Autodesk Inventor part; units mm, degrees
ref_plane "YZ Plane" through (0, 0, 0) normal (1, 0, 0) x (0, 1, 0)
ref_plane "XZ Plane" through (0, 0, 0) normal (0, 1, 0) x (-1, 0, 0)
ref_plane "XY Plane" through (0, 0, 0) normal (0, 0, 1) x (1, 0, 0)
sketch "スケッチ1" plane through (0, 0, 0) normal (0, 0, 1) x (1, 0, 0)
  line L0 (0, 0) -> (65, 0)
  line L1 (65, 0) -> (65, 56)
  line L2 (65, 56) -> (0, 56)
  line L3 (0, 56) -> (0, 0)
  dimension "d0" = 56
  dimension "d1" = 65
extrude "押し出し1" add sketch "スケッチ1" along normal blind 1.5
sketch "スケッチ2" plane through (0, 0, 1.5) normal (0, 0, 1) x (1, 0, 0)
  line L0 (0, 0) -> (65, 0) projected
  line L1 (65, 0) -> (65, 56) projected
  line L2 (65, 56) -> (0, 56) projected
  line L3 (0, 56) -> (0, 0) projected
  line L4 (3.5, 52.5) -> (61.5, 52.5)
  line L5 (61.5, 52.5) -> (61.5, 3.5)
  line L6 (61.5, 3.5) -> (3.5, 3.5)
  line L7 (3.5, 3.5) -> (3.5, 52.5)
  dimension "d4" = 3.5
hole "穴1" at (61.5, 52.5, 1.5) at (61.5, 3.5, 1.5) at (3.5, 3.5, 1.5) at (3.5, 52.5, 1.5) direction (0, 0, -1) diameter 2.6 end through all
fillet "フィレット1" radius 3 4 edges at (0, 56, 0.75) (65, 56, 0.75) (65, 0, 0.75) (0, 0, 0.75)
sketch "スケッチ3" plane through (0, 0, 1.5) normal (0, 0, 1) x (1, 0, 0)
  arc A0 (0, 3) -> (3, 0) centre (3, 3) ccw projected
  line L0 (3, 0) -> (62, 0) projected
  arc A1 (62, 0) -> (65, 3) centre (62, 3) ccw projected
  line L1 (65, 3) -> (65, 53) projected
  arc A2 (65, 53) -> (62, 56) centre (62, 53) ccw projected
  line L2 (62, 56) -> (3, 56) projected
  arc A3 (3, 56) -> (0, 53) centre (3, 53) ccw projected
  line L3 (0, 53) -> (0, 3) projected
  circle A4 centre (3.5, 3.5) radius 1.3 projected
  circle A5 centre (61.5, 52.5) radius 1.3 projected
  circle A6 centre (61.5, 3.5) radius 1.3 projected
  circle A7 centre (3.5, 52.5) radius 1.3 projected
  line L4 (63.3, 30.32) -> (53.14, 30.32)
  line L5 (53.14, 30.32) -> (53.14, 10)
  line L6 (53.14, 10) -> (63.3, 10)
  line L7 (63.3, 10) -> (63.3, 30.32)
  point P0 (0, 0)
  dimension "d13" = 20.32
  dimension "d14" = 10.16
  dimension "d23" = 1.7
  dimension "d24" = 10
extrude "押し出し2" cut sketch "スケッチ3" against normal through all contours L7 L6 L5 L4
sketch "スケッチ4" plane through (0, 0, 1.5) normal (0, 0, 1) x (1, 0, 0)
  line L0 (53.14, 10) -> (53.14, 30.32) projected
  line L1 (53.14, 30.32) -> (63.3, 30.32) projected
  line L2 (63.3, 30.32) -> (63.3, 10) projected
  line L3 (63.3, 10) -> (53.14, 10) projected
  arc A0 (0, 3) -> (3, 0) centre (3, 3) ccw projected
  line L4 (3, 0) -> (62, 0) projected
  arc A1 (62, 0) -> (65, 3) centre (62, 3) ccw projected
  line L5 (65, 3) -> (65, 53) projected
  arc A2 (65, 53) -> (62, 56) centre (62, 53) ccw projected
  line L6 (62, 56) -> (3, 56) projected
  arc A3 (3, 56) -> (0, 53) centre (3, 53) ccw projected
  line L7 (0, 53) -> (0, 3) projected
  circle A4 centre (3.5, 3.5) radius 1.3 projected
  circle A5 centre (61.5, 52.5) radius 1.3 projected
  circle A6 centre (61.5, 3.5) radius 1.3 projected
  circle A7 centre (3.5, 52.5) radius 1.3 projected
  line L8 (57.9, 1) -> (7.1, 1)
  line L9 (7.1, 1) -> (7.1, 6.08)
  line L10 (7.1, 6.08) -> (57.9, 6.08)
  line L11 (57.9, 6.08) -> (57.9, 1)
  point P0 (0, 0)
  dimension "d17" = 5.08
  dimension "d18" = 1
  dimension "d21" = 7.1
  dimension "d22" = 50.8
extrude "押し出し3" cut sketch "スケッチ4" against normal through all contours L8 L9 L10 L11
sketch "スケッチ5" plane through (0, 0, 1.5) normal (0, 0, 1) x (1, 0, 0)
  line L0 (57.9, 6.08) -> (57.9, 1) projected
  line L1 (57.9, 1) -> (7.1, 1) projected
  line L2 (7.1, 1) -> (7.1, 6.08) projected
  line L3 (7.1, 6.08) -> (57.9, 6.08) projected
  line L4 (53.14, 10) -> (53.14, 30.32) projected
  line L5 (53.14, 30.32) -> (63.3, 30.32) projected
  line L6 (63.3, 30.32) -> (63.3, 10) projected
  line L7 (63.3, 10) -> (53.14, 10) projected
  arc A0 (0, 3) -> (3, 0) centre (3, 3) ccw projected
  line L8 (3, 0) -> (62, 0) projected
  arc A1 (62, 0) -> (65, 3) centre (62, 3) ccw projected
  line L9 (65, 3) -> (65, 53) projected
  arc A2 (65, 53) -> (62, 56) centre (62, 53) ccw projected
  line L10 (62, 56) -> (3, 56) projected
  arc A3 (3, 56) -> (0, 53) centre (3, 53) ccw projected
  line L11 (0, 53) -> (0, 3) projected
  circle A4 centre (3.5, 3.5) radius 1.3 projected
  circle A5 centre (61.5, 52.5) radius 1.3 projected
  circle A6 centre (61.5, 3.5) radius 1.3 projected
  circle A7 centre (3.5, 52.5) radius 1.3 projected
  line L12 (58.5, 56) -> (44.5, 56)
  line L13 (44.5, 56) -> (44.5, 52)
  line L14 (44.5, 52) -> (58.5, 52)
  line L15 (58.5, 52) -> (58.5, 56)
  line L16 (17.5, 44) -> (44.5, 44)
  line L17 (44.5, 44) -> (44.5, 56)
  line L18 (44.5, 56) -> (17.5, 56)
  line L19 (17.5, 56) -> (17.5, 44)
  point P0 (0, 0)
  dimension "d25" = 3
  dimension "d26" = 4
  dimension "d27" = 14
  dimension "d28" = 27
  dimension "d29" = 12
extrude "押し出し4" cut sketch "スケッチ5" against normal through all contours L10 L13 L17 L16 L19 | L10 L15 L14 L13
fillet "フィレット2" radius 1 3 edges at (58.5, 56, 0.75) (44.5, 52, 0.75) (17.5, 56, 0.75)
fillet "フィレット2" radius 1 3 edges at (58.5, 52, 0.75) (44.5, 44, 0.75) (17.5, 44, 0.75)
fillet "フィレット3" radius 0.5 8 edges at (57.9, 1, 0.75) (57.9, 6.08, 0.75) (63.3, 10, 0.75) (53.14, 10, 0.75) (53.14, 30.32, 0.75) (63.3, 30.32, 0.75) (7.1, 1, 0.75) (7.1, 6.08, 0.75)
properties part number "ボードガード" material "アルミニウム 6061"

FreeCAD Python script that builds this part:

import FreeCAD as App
import Part
import Sketcher
from FreeCAD import Vector


def edges_at(feature, points):
    """Names of the edges that pass closest to the given points."""
    edges = feature.Shape.Edges
    near = lambda p: min(range(len(edges)), key=lambda i: edges[i].distToShape(Part.Vertex(*p))[0])
    return sorted({f"Edge{near(p) + 1}" for p in points})


def add_polygon(sketch, points):
    """Adds a closed chain of lines whose ends are joined by coincident constraints."""
    first, n = sketch.GeometryCount, len(points)
    for a, b in zip(points, points[1:] + points[:1]):
        sketch.addGeometry(Part.LineSegment(App.Vector(*a, 0), App.Vector(*b, 0)), False)
    for i in range(n):
        sketch.addConstraint(Sketcher.Constraint("Coincident", first + i, 2, first + (i + 1) % n, 1))

doc = App.newDocument("Part")
body = doc.addObject("PartDesign::Body", "Body")

# Sketch on XY plane
sketch1 = body.newObject("Sketcher::SketchObject", "Sketch")
sketch1.AttachmentSupport = (doc.getObject("XY_Plane"), [""])
sketch1.MapMode = "FlatFace"
add_polygon(sketch1, [(0, 56), (0, 0), (65, 0), (65, 56)])  # lines 0-3
sketch1.addConstraint(Sketcher.Constraint("Vertical", 0))
sketch1.addConstraint(Sketcher.Constraint("Horizontal", 1))
sketch1.addConstraint(Sketcher.Constraint("Vertical", 2))
sketch1.addConstraint(Sketcher.Constraint("Horizontal", 3))
sketch1.addConstraint(Sketcher.Constraint("Coincident", 0, 2, -1, 1))
sketch1.addConstraint(Sketcher.Constraint("DistanceX", 1, 1, 1, 2, 65.0))
sketch1.addConstraint(Sketcher.Constraint("DistanceY", 0, 2, 0, 1, 56.0))
pad1 = body.newObject("PartDesign::Pad", "Pad")
pad1.Profile = sketch1
pad1.Length = 1.5

# Sketch on XY plane
sketch2 = body.newObject("Sketcher::SketchObject", "Sketch001")
sketch2.AttachmentSupport = (doc.getObject("XY_Plane"), [""])
sketch2.MapMode = "FlatFace"
sketch2.AttachmentOffset = App.Placement(Vector(0, 0, 1.5), App.Rotation())
sketch2.addGeometry(Part.Circle(Vector(61.5, 52.5, 0), Vector(0, 0, 1), 1.3), False)
sketch2.addGeometry(Part.Circle(Vector(61.5, 3.5, 0), Vector(0, 0, 1), 1.3), False)
sketch2.addGeometry(Part.Circle(Vector(3.5, 3.5, 0), Vector(0, 0, 1), 1.3), False)
sketch2.addGeometry(Part.Circle(Vector(3.5, 52.5, 0), Vector(0, 0, 1), 1.3), False)
sketch2.addConstraint(Sketcher.Constraint("Equal", 0, 1))
sketch2.addConstraint(Sketcher.Constraint("Equal", 1, 2))
sketch2.addConstraint(Sketcher.Constraint("Equal", 2, 3))
sketch2.addConstraint(Sketcher.Constraint("Horizontal", 1, 3, 2, 3))
sketch2.addConstraint(Sketcher.Constraint("Horizontal", 0, 3, 3, 3))
sketch2.addConstraint(Sketcher.Constraint("Vertical", 0, 3, 1, 3))
sketch2.addConstraint(Sketcher.Constraint("Vertical", 2, 3, 3, 3))
sketch2.addConstraint(Sketcher.Constraint("Diameter", 0, 2.6))
sketch2.addConstraint(Sketcher.Constraint("DistanceY", 1, 3, 0, 3, 49.0))
sketch2.addConstraint(Sketcher.Constraint("DistanceX", 2, 3, 1, 3, 58.0))
sketch2.addConstraint(Sketcher.Constraint("DistanceX", -1, 1, 0, 3, 61.5))
sketch2.addConstraint(Sketcher.Constraint("DistanceY", -1, 1, 0, 3, 52.5))
doc.recompute()
hole = body.newObject("PartDesign::Hole", "Hole")
hole.Profile = sketch2
hole.ThreadType = "None"
hole.Diameter = 2.6
hole.DepthType = "ThroughAll"
doc.recompute()

fillet = body.newObject("PartDesign::Fillet", "Fillet")
fillet.Base = (hole, edges_at(hole, [
    (0, 56, 0.75),
    (65, 56, 0.75),
    (65, 0, 0.75),
    (0, 0, 0.75),
]))
fillet.Radius = 3

# Sketch on XY plane
sketch3 = body.newObject("Sketcher::SketchObject", "Sketch002")
sketch3.AttachmentSupport = (doc.getObject("XY_Plane"), [""])
sketch3.MapMode = "FlatFace"
sketch3.AttachmentOffset = App.Placement(Vector(0, 0, 1.5), App.Rotation())
add_polygon(sketch3, [(63, 10), (63, 30), (53, 30), (53, 10)])  # lines 0-3
sketch3.addConstraint(Sketcher.Constraint("Vertical", 0))
sketch3.addConstraint(Sketcher.Constraint("Horizontal", 1))
sketch3.addConstraint(Sketcher.Constraint("Vertical", 2))
sketch3.addConstraint(Sketcher.Constraint("Horizontal", 3))
sketch3.addConstraint(Sketcher.Constraint("DistanceY", -1, 1, 2, 2, 10.0))
sketch3.addConstraint(Sketcher.Constraint("DistanceX", 1, 2, 1, 1, 10.16))
sketch3.addConstraint(Sketcher.Constraint("DistanceY", 0, 1, 0, 2, 20.32))
sketch3.addConstraint(Sketcher.Constraint("DistanceX", -1, 1, 0, 2, 63.3))
pocket1 = body.newObject("PartDesign::Pocket", "Pocket")
pocket1.Profile = sketch3
pocket1.Type = "ThroughAll"

# Sketch on XY plane
sketch4 = body.newObject("Sketcher::SketchObject", "Sketch003")
sketch4.AttachmentSupport = (doc.getObject("XY_Plane"), [""])
sketch4.MapMode = "FlatFace"
sketch4.AttachmentOffset = App.Placement(Vector(0, 0, 1.5), App.Rotation())
add_polygon(sketch4, [(7, 1), (58, 1), (58, 6), (7, 6)])  # lines 0-3
sketch4.addConstraint(Sketcher.Constraint("Horizontal", 0))
sketch4.addConstraint(Sketcher.Constraint("Vertical", 1))
sketch4.addConstraint(Sketcher.Constraint("Horizontal", 2))
sketch4.addConstraint(Sketcher.Constraint("Vertical", 3))
sketch4.addConstraint(Sketcher.Constraint("DistanceX", 0, 1, 0, 2, 50.8))
sketch4.addConstraint(Sketcher.Constraint("DistanceY", -1, 1, 0, 2, 1.0))
sketch4.addConstraint(Sketcher.Constraint("DistanceY", 1, 1, 1, 2, 5.08))
sketch4.addConstraint(Sketcher.Constraint("DistanceX", -1, 1, 2, 2, 7.1))
pocket2 = body.newObject("PartDesign::Pocket", "Pocket001")
pocket2.Profile = sketch4
pocket2.Type = "ThroughAll"

# Sketch on XY plane
sketch5 = body.newObject("Sketcher::SketchObject", "Sketch004")
sketch5.AttachmentSupport = (doc.getObject("XY_Plane"), [""])
sketch5.MapMode = "FlatFace"
sketch5.AttachmentOffset = App.Placement(Vector(0, 0, 1.5), App.Rotation())
add_polygon(sketch5, [(17.5, 56), (17.5, 44), (44.5, 44), (44.5, 52), (58.5, 52), (58.5, 56)])  # lines 0-5
sketch5.addConstraint(Sketcher.Constraint("Vertical", 0))
sketch5.addConstraint(Sketcher.Constraint("Horizontal", 1))
sketch5.addConstraint(Sketcher.Constraint("Vertical", 2))
sketch5.addConstraint(Sketcher.Constraint("Horizontal", 3))
sketch5.addConstraint(Sketcher.Constraint("Vertical", 4))
sketch5.addConstraint(Sketcher.Constraint("Horizontal", 5))
sketch5.addConstraint(Sketcher.Constraint("DistanceX", 1, 1, 1, 2, 27.0))
sketch5.addConstraint(Sketcher.Constraint("DistanceX", 3, 1, 3, 2, 14.0))
sketch5.addConstraint(Sketcher.Constraint("DistanceY", 0, 2, 0, 1, 12.0))
sketch5.addConstraint(Sketcher.Constraint("DistanceY", 4, 1, 4, 2, 4.0))
sketch5.addConstraint(Sketcher.Constraint("DistanceY", -1, 1, 0, 2, 44.0))
sketch5.addConstraint(Sketcher.Constraint("DistanceX", -1, 1, 0, 2, 17.5))
pocket3 = body.newObject("PartDesign::Pocket", "Pocket002")
pocket3.Profile = sketch5
pocket3.Type = "ThroughAll"
doc.recompute()

fillet2 = body.newObject("PartDesign::Fillet", "Fillet001")
fillet2.Base = (pocket3, edges_at(pocket3, [(58.5, 56, 0.75), (44.5, 52, 0.75), (17.5, 56, 0.75)]))
fillet2.Radius = 1
doc.recompute()

fillet3 = body.newObject("PartDesign::Fillet", "Fillet002")
fillet3.Base = (fillet2, edges_at(fillet2, [(58.5, 52, 0.75), (44.5, 44, 0.75), (17.5, 44, 0.75)]))
fillet3.Radius = 1
doc.recompute()

fillet4 = body.newObject("PartDesign::Fillet", "Fillet003")
fillet4.Base = (fillet3, edges_at(fillet3, [
    (57.9, 1, 0.75),
    (57.9, 6.08, 0.75),
    (63.3, 10, 0.75),
    (53.14, 10, 0.75),
    (53.14, 30.32, 0.75),
    (63.3, 30.32, 0.75),
    (7.1, 1, 0.75),
    (7.1, 6.08, 0.75),
]))
fillet4.Radius = 0.5

doc.recompute()
